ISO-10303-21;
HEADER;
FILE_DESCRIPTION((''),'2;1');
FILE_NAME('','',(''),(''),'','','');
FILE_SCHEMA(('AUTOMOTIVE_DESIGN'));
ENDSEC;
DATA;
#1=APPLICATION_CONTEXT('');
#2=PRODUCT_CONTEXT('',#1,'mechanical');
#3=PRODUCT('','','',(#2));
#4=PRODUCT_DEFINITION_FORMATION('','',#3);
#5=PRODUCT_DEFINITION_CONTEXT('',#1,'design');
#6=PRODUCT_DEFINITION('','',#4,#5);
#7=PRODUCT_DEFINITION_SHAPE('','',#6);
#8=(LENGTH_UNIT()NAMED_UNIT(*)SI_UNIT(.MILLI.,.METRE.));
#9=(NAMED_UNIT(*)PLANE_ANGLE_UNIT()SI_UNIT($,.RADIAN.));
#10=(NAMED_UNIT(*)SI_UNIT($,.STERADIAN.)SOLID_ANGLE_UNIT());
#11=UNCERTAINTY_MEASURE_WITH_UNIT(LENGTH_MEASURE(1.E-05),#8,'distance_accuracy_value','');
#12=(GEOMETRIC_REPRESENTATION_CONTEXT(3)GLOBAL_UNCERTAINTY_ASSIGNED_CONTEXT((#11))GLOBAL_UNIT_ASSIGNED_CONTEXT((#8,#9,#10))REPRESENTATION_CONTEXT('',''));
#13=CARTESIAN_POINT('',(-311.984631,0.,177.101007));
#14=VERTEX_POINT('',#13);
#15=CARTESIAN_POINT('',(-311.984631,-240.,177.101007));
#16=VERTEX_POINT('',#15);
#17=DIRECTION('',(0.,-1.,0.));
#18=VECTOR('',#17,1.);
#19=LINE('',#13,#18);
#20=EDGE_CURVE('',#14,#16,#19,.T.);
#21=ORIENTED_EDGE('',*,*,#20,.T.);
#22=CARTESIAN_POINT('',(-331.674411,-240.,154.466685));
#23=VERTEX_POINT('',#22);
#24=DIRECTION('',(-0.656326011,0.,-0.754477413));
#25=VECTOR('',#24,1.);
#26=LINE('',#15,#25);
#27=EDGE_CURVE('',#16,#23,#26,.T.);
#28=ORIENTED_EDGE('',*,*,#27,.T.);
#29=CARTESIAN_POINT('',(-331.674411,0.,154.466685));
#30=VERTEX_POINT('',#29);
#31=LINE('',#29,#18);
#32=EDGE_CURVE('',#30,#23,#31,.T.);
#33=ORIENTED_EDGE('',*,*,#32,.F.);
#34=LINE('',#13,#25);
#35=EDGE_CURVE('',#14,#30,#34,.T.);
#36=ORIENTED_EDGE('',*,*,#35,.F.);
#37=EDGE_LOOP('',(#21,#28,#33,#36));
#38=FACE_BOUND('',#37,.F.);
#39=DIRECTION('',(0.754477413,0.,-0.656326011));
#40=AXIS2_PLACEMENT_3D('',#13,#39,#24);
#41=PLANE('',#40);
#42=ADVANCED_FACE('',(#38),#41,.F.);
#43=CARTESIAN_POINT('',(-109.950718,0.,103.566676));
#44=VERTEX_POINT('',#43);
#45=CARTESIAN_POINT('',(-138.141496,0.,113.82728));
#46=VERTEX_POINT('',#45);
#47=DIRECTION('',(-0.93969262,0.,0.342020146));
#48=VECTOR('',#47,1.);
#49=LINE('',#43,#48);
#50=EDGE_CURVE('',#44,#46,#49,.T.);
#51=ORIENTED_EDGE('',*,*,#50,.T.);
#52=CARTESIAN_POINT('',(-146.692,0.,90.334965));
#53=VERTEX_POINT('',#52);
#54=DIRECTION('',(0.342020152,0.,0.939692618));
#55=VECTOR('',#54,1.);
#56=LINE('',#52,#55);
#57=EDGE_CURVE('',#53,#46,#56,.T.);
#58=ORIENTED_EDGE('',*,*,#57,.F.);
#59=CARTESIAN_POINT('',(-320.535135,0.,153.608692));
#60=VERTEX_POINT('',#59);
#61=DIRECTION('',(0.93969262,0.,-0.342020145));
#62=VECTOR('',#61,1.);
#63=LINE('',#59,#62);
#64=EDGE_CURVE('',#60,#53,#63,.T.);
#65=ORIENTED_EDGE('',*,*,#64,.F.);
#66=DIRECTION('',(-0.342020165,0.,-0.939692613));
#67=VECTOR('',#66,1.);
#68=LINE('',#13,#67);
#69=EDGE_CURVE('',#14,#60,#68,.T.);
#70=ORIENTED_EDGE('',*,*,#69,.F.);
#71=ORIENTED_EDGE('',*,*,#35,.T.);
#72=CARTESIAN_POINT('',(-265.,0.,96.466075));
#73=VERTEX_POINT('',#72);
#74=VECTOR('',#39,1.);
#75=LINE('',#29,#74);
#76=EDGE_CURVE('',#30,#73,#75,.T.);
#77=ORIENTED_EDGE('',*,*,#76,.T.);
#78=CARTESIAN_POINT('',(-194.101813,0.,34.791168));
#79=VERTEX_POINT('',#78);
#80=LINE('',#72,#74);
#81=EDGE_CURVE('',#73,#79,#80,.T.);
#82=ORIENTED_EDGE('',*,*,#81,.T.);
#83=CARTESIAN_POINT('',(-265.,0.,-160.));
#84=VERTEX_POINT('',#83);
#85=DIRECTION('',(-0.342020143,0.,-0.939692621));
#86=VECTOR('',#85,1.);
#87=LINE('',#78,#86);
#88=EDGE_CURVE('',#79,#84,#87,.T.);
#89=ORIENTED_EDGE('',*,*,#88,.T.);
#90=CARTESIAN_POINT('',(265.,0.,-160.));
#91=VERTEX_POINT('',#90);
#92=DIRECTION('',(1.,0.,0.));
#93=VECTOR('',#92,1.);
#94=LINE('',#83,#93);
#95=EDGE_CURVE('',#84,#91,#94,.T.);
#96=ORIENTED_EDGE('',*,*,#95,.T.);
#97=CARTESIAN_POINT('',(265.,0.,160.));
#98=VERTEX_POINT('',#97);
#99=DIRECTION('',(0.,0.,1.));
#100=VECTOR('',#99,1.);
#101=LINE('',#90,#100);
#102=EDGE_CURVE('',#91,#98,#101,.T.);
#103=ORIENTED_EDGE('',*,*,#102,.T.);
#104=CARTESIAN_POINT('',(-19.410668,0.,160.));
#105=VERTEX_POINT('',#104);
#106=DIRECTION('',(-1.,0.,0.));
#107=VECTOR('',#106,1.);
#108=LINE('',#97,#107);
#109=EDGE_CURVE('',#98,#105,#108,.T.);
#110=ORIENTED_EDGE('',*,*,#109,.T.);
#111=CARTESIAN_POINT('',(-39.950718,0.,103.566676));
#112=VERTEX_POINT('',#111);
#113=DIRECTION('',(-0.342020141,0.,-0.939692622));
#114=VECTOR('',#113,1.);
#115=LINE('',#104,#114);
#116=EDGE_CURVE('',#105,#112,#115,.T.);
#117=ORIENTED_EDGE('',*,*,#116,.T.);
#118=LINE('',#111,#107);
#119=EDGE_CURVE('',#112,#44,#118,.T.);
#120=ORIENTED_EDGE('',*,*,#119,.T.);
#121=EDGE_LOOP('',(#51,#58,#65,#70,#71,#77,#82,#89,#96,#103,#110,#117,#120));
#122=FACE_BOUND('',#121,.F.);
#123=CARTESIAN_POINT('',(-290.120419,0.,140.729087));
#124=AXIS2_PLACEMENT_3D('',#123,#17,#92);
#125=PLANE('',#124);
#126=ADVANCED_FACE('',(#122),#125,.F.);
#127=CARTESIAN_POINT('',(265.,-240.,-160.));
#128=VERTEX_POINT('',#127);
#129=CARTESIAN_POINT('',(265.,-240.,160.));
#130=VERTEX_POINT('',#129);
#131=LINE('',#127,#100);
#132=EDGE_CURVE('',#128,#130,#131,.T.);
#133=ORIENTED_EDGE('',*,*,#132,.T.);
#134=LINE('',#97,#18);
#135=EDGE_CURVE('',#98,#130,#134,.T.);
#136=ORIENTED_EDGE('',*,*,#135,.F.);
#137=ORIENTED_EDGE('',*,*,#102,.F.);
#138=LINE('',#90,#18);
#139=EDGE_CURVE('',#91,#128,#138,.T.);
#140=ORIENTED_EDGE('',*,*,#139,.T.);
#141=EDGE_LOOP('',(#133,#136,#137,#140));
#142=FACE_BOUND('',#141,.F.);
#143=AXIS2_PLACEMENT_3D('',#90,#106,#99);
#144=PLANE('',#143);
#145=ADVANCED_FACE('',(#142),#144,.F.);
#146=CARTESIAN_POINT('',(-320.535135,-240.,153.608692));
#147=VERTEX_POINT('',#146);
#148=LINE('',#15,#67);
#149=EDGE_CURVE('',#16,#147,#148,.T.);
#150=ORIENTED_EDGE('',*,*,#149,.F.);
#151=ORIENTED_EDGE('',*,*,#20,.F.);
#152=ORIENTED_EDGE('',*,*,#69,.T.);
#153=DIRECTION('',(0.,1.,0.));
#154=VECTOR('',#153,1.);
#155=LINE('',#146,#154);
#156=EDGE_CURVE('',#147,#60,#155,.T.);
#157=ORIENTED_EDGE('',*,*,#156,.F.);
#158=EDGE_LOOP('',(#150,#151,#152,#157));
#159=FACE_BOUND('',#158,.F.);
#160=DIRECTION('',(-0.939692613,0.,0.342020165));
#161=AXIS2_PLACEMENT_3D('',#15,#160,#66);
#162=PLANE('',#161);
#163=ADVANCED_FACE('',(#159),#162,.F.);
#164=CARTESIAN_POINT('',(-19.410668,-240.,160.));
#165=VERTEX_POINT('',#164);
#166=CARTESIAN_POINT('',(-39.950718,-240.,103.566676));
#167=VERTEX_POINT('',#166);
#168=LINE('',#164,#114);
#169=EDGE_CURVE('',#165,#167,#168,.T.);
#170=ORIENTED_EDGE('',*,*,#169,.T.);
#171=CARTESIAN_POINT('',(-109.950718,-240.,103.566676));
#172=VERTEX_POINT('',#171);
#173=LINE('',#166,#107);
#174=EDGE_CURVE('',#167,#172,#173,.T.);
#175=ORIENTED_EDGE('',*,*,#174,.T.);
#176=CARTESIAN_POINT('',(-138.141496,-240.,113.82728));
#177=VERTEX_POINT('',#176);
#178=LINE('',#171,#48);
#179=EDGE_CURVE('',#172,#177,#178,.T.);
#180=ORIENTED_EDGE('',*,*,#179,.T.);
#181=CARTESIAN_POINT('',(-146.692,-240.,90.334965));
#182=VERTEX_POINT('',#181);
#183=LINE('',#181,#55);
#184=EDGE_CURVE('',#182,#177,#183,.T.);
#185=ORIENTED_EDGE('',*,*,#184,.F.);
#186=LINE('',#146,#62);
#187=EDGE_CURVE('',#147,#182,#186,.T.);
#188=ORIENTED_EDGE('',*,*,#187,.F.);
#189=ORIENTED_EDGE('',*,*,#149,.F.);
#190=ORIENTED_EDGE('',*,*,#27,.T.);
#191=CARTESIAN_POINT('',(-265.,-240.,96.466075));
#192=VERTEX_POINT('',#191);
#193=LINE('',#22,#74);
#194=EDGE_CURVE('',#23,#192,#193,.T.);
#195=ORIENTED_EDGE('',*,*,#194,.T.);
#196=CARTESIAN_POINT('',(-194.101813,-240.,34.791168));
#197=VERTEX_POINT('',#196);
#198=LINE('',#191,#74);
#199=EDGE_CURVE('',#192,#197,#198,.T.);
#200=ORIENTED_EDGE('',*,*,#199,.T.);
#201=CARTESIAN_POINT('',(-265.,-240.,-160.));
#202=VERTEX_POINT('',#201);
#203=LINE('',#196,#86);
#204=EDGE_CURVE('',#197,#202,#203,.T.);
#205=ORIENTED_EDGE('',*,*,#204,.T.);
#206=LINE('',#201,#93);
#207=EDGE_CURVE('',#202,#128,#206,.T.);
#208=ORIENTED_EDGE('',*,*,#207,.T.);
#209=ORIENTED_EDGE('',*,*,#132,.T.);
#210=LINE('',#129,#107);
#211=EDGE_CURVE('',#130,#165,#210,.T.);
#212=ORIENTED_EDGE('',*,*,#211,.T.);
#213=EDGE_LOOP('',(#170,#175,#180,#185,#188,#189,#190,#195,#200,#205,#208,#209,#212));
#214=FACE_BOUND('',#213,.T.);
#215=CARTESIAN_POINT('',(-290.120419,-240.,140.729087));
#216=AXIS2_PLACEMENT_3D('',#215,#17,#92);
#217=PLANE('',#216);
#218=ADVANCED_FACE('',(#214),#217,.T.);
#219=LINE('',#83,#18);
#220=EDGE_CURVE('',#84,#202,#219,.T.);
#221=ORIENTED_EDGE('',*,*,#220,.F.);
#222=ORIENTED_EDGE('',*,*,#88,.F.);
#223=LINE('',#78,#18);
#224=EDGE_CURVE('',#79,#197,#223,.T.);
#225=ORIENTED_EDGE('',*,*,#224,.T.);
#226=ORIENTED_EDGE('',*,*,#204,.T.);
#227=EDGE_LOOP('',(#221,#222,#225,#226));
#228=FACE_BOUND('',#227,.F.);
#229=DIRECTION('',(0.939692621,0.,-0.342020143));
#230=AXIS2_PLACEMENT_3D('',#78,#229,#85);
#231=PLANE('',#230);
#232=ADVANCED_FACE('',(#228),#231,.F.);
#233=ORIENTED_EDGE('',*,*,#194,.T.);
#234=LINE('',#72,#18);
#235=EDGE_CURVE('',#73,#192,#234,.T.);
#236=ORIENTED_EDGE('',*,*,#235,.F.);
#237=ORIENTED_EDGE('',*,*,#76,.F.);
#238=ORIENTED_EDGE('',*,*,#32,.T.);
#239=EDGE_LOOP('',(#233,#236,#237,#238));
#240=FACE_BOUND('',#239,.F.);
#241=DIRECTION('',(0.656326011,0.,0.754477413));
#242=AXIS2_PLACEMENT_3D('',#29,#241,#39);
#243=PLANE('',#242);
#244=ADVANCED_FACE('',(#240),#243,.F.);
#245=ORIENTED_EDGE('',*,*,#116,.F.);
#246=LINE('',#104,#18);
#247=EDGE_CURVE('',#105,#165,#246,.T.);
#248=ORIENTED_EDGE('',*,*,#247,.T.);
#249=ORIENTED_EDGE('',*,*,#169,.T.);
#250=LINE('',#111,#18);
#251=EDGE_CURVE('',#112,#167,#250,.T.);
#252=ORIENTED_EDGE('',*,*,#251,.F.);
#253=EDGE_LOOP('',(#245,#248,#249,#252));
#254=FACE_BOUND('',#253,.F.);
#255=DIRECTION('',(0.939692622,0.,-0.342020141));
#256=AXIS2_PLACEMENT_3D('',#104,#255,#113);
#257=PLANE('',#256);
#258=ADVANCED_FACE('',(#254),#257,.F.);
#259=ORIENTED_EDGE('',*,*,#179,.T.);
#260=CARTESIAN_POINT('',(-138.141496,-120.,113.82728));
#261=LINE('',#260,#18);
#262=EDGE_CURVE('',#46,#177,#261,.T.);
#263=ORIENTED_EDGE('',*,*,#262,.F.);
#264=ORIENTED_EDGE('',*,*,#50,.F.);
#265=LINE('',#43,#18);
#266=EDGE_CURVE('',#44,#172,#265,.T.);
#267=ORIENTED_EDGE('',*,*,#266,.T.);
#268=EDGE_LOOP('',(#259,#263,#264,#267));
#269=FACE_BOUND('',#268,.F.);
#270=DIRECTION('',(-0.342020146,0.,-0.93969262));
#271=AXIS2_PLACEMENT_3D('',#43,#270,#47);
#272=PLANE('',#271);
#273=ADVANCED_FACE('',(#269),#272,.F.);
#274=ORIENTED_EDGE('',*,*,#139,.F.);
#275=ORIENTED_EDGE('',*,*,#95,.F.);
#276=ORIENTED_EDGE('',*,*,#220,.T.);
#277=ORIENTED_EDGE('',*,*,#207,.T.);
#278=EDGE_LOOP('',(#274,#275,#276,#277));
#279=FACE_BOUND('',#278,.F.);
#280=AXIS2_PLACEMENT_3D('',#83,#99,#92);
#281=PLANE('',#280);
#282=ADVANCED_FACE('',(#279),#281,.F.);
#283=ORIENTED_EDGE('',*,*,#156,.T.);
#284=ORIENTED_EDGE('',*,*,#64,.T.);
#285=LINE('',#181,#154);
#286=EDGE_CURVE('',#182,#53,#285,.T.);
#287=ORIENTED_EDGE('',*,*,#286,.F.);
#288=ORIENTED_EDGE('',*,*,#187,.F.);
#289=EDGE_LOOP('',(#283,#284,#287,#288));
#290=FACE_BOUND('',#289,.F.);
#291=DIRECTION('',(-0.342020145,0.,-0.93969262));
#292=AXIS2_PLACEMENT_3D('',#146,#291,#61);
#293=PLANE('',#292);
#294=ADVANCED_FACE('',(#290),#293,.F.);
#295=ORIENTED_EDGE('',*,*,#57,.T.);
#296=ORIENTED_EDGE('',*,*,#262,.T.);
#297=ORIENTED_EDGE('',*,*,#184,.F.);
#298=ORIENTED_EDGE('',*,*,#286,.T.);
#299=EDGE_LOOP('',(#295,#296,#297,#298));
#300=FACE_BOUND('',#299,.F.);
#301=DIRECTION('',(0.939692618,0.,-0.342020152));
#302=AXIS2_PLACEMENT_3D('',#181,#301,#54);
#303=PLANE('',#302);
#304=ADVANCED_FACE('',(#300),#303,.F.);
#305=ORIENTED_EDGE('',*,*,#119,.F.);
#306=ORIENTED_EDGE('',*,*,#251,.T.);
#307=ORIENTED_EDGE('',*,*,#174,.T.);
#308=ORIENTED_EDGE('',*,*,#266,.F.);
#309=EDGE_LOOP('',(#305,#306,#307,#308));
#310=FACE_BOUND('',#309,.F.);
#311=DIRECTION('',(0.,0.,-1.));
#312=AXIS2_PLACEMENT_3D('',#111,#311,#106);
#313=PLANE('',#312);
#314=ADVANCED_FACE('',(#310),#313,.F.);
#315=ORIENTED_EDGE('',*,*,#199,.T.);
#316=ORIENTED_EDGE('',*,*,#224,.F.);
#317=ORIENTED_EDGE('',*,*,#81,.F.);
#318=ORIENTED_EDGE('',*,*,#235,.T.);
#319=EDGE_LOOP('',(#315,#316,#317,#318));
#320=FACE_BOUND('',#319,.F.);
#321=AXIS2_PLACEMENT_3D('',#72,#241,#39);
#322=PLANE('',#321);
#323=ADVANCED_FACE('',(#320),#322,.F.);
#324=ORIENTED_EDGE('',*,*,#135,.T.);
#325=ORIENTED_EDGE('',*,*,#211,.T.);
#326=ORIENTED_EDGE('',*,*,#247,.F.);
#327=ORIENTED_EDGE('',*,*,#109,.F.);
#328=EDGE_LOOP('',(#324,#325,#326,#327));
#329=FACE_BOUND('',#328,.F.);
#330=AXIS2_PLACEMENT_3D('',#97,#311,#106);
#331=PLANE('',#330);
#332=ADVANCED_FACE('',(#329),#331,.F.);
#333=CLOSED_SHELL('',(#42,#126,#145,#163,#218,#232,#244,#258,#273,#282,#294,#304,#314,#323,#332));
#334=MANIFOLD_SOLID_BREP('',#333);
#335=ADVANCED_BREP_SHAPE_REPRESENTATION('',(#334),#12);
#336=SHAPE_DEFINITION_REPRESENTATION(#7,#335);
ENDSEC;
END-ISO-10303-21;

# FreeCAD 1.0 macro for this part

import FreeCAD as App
import Part
import Sketcher
Q = App.Units.Quantity


def add_polygon(sketch, points):
    """Adds a closed chain of lines whose ends are joined by coincident constraints."""
    first, n = sketch.GeometryCount, len(points)
    for a, b in zip(points, points[1:] + points[:1]):
        sketch.addGeometry(Part.LineSegment(App.Vector(*a, 0), App.Vector(*b, 0)), False)
    for i in range(n):
        sketch.addConstraint(Sketcher.Constraint("Coincident", first + i, 2, first + (i + 1) % n, 1))

doc = App.newDocument("Part")
body = doc.addObject("PartDesign::Body", "Body")

# Sketch on XZ plane
sketch1 = doc.addObject("Sketcher::SketchObject", "Sketch")
body.addObject(sketch1)
sketch1.AttachmentSupport = (doc.XZ_Plane, [""])
sketch1.MapMode = "FlatFace"
add_polygon(sketch1, [(-265, 160), (-311.984631, 177.101007), (-331.674411, 154.466685), (-265, 96.466075), (-194.101813, 34.791168), (-265, -160), (265, -160), (265, 160), (-19.410668, 160), (-39.950718, 103.566676), (-109.950718, 103.566676)])  # lines 0-10
sketch1.addConstraint([
    Sketcher.Constraint("Horizontal", 5),
    Sketcher.Constraint("Vertical", 6),
    Sketcher.Constraint("Horizontal", 7),
    Sketcher.Constraint("Horizontal", 9),
    Sketcher.Constraint("Symmetric", 4, 2, 6, 2, -1, 1),
    Sketcher.Constraint("Symmetric", 5, 2, 10, 2, -1, 1),
    Sketcher.Constraint("Perpendicular", 1, 2),
    Sketcher.Constraint("Parallel", 2, 3),
    Sketcher.Constraint("Perpendicular", 0, 4),
    Sketcher.Constraint("Parallel", 4, 8),
    Sketcher.Constraint("Perpendicular", 8, 10),
    Sketcher.Constraint("Vertical", 2, 2, 4, 2),
    Sketcher.Constraint("DistanceX", 5, 1, 5, 2, 530.0),
    Sketcher.Constraint("DistanceX", 9, 2, 9, 1, 70.0),
    Sketcher.Constraint("DistanceY", 6, 1, 6, 2, 320.0),
    Sketcher.Constraint("Angle", 0, Q("160 deg")),
    Sketcher.Constraint("Distance", 0, 50.0),
    Sketcher.Constraint("Distance", 1, 29.999999),
    Sketcher.Constraint("Distance", 10, 165.0),
    Sketcher.Constraint("DistanceX", 1, 2, 3, 2, 137.572598),
])
pad1 = doc.addObject("PartDesign::Pad", "Pad")
body.addObject(pad1)
pad1.Profile = sketch1
pad1.Length = 240

# Sketch on XZ plane
sketch2 = doc.addObject("Sketcher::SketchObject", "Sketch001")
body.addObject(sketch2)
sketch2.AttachmentSupport = (doc.XZ_Plane, [""])
sketch2.MapMode = "FlatFace"
sketch2.AttachmentOffset = App.Placement(App.Vector(0, 0, 240), App.Rotation())
add_polygon(sketch2, [(-138.141496, 113.827281), (-311.984631, 177.101007), (-320.535135, 153.608692), (-146.692, 90.334965)])  # lines 0-3
sketch2.addConstraint([
    Sketcher.Constraint("Perpendicular", 0, 1),
    Sketcher.Constraint("Perpendicular", 1, 2),
    Sketcher.Constraint("Perpendicular", 2, 3),
    Sketcher.Constraint("Angle", 0, Q("160 deg")),
    Sketcher.Constraint("Distance", 0, 185.0),
    Sketcher.Constraint("Distance", 1, 25.0),
    Sketcher.Constraint("DistanceX", 2, 2, -1, 1, 146.692),
    Sketcher.Constraint("DistanceY", -1, 1, 1, 2, 153.608692),
])
pocket1 = doc.addObject("PartDesign::Pocket", "Pocket")
body.addObject(pocket1)
pocket1.Profile = sketch2
pocket1.Length = 240

doc.recompute()
